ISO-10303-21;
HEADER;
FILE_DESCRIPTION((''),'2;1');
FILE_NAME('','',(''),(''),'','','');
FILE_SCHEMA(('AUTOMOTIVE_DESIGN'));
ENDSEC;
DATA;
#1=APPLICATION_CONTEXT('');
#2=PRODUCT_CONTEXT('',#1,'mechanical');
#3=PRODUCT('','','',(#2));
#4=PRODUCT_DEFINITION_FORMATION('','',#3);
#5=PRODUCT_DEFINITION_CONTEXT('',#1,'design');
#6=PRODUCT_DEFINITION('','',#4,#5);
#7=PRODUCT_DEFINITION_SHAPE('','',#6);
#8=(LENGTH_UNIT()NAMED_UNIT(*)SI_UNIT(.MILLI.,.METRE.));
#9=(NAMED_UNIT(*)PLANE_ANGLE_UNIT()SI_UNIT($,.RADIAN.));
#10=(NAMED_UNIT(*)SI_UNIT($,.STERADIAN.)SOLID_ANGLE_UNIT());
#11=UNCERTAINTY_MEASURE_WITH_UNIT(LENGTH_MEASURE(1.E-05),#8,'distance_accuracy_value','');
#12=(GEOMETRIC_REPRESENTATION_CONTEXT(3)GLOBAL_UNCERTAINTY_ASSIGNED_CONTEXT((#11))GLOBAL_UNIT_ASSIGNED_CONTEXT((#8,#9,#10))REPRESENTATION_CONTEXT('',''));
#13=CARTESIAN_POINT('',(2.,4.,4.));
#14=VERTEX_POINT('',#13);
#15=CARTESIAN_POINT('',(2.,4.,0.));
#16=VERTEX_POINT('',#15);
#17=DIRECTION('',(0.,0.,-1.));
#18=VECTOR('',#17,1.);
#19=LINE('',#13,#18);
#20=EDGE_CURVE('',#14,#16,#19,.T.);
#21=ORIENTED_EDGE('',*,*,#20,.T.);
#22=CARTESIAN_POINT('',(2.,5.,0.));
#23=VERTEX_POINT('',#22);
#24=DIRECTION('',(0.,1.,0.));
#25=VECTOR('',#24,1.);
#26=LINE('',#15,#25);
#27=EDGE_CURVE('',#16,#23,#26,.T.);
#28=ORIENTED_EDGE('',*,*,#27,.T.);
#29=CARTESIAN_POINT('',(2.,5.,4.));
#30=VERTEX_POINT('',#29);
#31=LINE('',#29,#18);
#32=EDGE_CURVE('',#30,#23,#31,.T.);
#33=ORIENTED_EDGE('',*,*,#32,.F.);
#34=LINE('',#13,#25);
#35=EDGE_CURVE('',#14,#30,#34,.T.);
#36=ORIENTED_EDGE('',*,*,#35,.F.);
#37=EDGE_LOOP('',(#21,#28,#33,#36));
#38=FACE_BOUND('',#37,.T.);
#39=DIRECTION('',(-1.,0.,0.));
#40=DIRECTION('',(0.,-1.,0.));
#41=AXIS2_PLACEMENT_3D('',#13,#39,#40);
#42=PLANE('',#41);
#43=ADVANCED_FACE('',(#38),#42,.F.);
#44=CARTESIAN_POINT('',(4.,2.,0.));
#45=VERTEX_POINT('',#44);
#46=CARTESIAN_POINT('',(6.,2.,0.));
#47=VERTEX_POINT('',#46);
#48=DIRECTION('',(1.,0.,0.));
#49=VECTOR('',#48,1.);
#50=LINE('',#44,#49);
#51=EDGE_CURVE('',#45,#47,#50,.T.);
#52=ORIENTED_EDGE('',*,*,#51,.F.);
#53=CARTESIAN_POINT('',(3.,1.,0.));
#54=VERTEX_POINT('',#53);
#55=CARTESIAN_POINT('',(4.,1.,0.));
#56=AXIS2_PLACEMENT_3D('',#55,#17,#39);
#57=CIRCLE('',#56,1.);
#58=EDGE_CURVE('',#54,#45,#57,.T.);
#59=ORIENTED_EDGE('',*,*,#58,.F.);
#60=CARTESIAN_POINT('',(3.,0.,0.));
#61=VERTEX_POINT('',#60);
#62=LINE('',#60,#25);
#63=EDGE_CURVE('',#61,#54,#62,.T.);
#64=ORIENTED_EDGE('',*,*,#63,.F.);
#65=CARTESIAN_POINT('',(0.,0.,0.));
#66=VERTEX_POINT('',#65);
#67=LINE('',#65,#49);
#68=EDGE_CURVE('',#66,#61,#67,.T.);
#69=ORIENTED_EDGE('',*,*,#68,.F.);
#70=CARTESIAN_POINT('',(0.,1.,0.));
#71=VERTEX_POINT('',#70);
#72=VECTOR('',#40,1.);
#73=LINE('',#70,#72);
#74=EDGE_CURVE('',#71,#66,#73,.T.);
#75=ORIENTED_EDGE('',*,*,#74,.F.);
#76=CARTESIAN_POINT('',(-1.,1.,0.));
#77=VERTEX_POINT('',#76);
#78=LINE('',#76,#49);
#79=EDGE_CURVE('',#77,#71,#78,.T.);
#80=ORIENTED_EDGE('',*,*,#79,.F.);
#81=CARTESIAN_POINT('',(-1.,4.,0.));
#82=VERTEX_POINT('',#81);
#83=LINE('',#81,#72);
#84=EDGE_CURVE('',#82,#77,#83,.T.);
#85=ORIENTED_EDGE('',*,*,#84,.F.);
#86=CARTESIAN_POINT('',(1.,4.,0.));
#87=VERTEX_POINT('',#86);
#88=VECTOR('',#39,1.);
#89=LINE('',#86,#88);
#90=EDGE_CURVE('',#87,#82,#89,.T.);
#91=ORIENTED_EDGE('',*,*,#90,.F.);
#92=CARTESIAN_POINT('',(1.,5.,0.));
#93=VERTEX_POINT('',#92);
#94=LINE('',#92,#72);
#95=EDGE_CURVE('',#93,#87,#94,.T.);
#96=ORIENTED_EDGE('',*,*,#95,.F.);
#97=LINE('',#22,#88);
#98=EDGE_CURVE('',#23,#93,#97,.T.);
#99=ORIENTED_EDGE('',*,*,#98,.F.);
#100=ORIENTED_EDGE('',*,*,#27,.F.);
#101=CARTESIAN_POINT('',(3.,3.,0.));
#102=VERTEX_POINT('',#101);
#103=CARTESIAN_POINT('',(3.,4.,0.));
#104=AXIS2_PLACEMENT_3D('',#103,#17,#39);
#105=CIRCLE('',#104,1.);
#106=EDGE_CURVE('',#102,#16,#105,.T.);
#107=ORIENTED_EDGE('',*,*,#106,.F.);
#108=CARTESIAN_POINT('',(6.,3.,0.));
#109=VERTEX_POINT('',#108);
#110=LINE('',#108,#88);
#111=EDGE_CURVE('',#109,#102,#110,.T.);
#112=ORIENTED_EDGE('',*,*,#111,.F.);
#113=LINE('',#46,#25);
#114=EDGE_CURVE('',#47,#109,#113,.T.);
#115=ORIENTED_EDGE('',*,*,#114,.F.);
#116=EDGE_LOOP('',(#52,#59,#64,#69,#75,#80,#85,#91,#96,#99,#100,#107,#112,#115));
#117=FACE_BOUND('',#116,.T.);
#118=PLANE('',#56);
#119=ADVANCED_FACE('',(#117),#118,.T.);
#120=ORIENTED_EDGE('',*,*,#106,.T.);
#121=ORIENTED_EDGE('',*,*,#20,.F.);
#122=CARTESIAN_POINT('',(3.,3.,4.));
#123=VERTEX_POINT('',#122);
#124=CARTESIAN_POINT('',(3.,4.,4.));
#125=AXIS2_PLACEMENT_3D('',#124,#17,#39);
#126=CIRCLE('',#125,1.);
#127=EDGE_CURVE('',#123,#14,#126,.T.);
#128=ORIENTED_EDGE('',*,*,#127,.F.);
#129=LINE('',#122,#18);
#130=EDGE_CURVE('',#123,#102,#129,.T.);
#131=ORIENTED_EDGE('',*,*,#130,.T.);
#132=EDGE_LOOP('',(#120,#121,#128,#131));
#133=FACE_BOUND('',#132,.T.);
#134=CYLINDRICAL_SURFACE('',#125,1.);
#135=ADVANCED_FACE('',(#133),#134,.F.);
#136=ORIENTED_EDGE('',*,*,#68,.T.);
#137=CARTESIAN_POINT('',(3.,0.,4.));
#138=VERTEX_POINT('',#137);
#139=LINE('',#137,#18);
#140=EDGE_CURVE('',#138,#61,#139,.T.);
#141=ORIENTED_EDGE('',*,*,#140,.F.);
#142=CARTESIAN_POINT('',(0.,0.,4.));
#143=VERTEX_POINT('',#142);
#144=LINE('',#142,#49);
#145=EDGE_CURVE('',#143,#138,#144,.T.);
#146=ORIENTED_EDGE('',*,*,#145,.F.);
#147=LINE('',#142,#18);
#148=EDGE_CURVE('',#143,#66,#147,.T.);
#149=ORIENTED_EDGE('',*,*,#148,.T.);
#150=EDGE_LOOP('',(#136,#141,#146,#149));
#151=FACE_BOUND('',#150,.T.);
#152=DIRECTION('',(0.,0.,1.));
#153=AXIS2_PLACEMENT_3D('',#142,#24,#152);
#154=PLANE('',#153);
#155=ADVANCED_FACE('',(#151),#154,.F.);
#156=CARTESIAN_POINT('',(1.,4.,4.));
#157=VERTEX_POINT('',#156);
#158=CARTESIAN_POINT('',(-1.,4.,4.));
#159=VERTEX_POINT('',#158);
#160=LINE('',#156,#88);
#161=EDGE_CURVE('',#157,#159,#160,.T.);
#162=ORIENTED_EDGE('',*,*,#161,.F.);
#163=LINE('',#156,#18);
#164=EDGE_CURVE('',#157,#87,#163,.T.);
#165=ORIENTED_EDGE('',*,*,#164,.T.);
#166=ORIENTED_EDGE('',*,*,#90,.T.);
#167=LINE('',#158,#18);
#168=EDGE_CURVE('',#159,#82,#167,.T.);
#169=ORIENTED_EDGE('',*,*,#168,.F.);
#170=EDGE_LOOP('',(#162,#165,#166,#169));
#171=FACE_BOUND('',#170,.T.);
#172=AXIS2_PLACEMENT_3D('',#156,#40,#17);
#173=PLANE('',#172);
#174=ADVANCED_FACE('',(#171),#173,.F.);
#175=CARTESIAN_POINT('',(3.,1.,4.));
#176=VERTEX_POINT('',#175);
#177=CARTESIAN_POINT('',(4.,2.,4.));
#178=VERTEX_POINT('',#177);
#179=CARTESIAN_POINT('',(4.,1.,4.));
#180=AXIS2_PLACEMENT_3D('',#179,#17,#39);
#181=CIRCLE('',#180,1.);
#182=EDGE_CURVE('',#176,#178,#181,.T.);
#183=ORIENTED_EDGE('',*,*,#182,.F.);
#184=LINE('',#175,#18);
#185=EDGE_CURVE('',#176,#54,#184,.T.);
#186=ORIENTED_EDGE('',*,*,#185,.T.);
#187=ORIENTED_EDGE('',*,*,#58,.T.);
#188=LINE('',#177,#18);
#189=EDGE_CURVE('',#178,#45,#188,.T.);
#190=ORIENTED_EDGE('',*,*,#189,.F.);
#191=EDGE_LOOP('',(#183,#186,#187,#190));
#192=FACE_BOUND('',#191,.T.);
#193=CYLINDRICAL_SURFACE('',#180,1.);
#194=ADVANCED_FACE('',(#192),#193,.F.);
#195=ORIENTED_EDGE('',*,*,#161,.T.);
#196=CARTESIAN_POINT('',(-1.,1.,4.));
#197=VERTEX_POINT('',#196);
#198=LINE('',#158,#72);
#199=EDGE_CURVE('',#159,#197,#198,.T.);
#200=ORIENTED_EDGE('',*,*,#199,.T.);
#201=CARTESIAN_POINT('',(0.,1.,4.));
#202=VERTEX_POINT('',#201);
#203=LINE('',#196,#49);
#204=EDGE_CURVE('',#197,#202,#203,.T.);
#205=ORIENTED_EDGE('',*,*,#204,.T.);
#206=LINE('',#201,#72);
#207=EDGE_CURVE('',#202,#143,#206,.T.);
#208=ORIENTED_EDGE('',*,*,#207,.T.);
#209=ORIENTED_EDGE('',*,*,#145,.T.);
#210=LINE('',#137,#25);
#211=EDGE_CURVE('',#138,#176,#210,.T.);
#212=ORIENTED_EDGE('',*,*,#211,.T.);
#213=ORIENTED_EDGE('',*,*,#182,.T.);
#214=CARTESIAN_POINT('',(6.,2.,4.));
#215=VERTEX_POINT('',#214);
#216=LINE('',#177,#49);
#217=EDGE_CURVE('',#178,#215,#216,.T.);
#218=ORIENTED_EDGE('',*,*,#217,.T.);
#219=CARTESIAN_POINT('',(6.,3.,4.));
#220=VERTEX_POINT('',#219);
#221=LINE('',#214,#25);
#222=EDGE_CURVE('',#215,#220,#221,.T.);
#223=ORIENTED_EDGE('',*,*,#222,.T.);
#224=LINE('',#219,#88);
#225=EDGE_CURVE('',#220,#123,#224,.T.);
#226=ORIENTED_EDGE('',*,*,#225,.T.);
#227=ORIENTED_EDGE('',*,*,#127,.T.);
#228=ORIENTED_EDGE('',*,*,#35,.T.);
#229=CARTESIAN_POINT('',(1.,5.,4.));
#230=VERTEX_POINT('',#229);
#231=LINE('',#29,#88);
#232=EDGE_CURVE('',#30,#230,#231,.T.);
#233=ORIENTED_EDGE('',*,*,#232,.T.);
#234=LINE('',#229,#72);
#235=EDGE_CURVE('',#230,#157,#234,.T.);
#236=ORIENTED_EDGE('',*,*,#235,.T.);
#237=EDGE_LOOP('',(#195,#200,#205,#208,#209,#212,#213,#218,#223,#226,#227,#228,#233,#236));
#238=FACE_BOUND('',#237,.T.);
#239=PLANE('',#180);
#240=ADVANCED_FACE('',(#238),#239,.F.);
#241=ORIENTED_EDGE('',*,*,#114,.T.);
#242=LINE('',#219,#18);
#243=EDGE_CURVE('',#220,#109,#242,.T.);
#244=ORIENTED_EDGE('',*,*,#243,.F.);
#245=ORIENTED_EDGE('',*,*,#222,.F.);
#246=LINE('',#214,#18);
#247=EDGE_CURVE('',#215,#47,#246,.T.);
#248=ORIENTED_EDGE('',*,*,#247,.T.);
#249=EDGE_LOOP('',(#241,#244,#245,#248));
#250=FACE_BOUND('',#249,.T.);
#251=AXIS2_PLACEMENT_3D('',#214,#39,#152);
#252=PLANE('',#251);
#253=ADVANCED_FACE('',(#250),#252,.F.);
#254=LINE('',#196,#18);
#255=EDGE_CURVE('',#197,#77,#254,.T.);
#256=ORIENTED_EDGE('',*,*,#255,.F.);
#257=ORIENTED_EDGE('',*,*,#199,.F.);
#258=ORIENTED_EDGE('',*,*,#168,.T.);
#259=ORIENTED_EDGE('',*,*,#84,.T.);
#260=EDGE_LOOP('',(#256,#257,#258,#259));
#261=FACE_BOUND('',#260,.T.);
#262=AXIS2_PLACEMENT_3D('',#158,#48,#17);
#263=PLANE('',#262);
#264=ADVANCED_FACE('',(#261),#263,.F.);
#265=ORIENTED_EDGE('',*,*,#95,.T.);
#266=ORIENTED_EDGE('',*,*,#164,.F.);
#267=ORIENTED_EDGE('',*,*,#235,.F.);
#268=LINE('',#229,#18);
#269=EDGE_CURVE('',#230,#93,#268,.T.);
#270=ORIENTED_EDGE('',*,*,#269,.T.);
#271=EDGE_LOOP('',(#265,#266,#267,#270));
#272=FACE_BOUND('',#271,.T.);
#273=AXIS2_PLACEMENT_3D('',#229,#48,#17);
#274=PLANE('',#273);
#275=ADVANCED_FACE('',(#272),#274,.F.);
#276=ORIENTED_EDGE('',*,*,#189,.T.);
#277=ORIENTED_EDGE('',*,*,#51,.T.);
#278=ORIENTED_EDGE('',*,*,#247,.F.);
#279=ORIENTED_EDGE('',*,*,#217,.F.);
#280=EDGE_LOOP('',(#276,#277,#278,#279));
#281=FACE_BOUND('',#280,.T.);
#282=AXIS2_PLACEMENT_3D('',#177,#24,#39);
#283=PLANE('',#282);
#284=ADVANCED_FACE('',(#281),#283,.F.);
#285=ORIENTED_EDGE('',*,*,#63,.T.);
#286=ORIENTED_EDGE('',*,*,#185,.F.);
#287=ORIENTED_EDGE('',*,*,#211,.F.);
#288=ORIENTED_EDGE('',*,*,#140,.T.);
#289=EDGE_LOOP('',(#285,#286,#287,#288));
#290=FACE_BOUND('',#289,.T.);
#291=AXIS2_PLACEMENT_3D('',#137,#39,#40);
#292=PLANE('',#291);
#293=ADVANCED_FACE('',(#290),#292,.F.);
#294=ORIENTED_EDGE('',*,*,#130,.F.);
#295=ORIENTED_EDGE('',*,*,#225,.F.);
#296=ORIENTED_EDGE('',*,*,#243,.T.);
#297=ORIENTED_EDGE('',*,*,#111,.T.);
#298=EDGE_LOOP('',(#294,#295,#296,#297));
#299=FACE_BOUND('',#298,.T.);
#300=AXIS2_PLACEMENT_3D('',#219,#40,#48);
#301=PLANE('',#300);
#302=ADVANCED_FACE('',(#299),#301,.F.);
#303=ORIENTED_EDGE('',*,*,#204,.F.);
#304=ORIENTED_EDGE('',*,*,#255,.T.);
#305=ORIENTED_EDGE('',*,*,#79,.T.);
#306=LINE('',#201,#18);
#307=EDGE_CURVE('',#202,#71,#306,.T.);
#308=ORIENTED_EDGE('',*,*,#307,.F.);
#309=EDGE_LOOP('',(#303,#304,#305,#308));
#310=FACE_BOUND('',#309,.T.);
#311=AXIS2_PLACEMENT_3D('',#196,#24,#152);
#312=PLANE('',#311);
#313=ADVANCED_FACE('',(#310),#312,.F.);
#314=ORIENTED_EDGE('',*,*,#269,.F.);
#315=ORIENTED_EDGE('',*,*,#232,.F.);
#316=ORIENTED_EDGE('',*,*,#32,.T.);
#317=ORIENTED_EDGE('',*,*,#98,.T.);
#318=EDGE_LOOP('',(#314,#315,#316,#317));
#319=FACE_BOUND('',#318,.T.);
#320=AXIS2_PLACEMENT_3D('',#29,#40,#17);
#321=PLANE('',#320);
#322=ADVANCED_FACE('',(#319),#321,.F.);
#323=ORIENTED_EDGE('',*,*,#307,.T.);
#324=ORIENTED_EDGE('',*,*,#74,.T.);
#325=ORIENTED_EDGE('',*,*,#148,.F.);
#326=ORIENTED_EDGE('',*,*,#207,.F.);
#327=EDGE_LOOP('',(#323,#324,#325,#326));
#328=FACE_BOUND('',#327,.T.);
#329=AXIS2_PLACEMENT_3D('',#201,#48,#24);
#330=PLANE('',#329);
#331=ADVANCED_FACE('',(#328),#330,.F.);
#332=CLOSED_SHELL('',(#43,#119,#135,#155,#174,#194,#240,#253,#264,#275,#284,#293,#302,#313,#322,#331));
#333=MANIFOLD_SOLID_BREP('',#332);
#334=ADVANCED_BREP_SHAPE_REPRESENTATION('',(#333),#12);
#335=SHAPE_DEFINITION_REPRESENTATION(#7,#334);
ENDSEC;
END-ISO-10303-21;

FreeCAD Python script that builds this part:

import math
import FreeCAD as App
import Part
import Sketcher

V = App.Vector

doc = App.newDocument("Part")
body = doc.addObject("PartDesign::Body", "Body")

sketch1 = doc.addObject("Sketcher::SketchObject", "Sketch")
body.addObject(sketch1)
sketch1.AttachmentSupport = (doc.XY_Plane, [""])
sketch1.MapMode = "FlatFace"
sketch1.addGeometry(Part.LineSegment(V(0, 0, 0), V(3, 0, 0)), False)
sketch1.addGeometry(Part.LineSegment(V(3, 0, 0), V(3, 1, 0)), False)
sketch1.addGeometry(Part.ArcOfCircle(Part.Circle(V(4, 1, 0), V(0, 0, 1), 1), math.radians(90), math.radians(180)), False)
sketch1.addGeometry(Part.LineSegment(V(4, 2, 0), V(6, 2, 0)), False)
sketch1.addGeometry(Part.LineSegment(V(6, 2, 0), V(6, 3, 0)), False)
sketch1.addGeometry(Part.LineSegment(V(6, 3, 0), V(3, 3, 0)), False)
sketch1.addGeometry(Part.ArcOfCircle(Part.Circle(V(3, 4, 0), V(0, 0, 1), 1), math.radians(-180), math.radians(-90)), False)
sketch1.addGeometry(Part.LineSegment(V(2, 4, 0), V(2, 5, 0)), False)
sketch1.addGeometry(Part.LineSegment(V(2, 5, 0), V(1, 5, 0)), False)
sketch1.addGeometry(Part.LineSegment(V(1, 5, 0), V(1, 4, 0)), False)
sketch1.addGeometry(Part.LineSegment(V(1, 4, 0), V(-1, 4, 0)), False)
sketch1.addGeometry(Part.LineSegment(V(-1, 4, 0), V(-1, 1, 0)), False)
sketch1.addGeometry(Part.LineSegment(V(-1, 1, 0), V(0, 1, 0)), False)
sketch1.addGeometry(Part.LineSegment(V(0, 1, 0), V(0, 0, 0)), False)
sketch1.addConstraint(Sketcher.Constraint("Coincident", 0, 2, 1, 1))
sketch1.addConstraint(Sketcher.Constraint("Tangent", 1, 2, 2, 2))
sketch1.addConstraint(Sketcher.Constraint("Tangent", 2, 1, 3, 1))
sketch1.addConstraint(Sketcher.Constraint("Coincident", 3, 2, 4, 1))
sketch1.addConstraint(Sketcher.Constraint("Coincident", 4, 2, 5, 1))
sketch1.addConstraint(Sketcher.Constraint("Tangent", 5, 2, 6, 2))
sketch1.addConstraint(Sketcher.Constraint("Tangent", 6, 1, 7, 1))
sketch1.addConstraint(Sketcher.Constraint("Coincident", 7, 2, 8, 1))
sketch1.addConstraint(Sketcher.Constraint("Coincident", 8, 2, 9, 1))
sketch1.addConstraint(Sketcher.Constraint("Coincident", 9, 2, 10, 1))
sketch1.addConstraint(Sketcher.Constraint("Coincident", 10, 2, 11, 1))
sketch1.addConstraint(Sketcher.Constraint("Coincident", 11, 2, 12, 1))
sketch1.addConstraint(Sketcher.Constraint("Coincident", 12, 2, 13, 1))
sketch1.addConstraint(Sketcher.Constraint("Coincident", 13, 2, 0, 1))
sketch1.addConstraint(Sketcher.Constraint("Horizontal", 0))
sketch1.addConstraint(Sketcher.Constraint("Vertical", 1))
sketch1.addConstraint(Sketcher.Constraint("Horizontal", 3))
sketch1.addConstraint(Sketcher.Constraint("Vertical", 4))
sketch1.addConstraint(Sketcher.Constraint("Horizontal", 5))
sketch1.addConstraint(Sketcher.Constraint("Vertical", 7))
sketch1.addConstraint(Sketcher.Constraint("Horizontal", 8))
sketch1.addConstraint(Sketcher.Constraint("Vertical", 9))
sketch1.addConstraint(Sketcher.Constraint("Horizontal", 10))
sketch1.addConstraint(Sketcher.Constraint("Vertical", 11))
sketch1.addConstraint(Sketcher.Constraint("Horizontal", 12))
sketch1.addConstraint(Sketcher.Constraint("Vertical", 13))
sketch1.addConstraint(Sketcher.Constraint("Coincident", 13, 2, -1, 1))
sketch1.addConstraint(Sketcher.Constraint("Equal", 2, 6))
sketch1.addConstraint(Sketcher.Constraint("Horizontal", 6, 1, 9, 2))
sketch1.addConstraint(Sketcher.Constraint("Horizontal", 1, 2, 11, 2))
sketch1.addConstraint(Sketcher.Constraint("Vertical", 6, 3, 0, 2))
sketch1.addConstraint(Sketcher.Constraint("Equal", 0, 5))
sketch1.addConstraint(Sketcher.Constraint("Equal", 3, 10))
sketch1.addConstraint(Sketcher.Constraint("Equal", 12, 1))
sketch1.addConstraint(Sketcher.Constraint("Equal", 1, 4))
sketch1.addConstraint(Sketcher.Constraint("Equal", 4, 7))
sketch1.addConstraint(Sketcher.Constraint("Equal", 5, 11))
sketch1.addConstraint(Sketcher.Constraint("Radius", 2, 1.0))
sketch1.addConstraint(Sketcher.Constraint("DistanceX", 0, 1, 0, 2, 3.0))
pad1 = doc.addObject("PartDesign::Pad", "Pad")
body.addObject(pad1)
pad1.Profile = sketch1
pad1.Length = 4

doc.recompute()
